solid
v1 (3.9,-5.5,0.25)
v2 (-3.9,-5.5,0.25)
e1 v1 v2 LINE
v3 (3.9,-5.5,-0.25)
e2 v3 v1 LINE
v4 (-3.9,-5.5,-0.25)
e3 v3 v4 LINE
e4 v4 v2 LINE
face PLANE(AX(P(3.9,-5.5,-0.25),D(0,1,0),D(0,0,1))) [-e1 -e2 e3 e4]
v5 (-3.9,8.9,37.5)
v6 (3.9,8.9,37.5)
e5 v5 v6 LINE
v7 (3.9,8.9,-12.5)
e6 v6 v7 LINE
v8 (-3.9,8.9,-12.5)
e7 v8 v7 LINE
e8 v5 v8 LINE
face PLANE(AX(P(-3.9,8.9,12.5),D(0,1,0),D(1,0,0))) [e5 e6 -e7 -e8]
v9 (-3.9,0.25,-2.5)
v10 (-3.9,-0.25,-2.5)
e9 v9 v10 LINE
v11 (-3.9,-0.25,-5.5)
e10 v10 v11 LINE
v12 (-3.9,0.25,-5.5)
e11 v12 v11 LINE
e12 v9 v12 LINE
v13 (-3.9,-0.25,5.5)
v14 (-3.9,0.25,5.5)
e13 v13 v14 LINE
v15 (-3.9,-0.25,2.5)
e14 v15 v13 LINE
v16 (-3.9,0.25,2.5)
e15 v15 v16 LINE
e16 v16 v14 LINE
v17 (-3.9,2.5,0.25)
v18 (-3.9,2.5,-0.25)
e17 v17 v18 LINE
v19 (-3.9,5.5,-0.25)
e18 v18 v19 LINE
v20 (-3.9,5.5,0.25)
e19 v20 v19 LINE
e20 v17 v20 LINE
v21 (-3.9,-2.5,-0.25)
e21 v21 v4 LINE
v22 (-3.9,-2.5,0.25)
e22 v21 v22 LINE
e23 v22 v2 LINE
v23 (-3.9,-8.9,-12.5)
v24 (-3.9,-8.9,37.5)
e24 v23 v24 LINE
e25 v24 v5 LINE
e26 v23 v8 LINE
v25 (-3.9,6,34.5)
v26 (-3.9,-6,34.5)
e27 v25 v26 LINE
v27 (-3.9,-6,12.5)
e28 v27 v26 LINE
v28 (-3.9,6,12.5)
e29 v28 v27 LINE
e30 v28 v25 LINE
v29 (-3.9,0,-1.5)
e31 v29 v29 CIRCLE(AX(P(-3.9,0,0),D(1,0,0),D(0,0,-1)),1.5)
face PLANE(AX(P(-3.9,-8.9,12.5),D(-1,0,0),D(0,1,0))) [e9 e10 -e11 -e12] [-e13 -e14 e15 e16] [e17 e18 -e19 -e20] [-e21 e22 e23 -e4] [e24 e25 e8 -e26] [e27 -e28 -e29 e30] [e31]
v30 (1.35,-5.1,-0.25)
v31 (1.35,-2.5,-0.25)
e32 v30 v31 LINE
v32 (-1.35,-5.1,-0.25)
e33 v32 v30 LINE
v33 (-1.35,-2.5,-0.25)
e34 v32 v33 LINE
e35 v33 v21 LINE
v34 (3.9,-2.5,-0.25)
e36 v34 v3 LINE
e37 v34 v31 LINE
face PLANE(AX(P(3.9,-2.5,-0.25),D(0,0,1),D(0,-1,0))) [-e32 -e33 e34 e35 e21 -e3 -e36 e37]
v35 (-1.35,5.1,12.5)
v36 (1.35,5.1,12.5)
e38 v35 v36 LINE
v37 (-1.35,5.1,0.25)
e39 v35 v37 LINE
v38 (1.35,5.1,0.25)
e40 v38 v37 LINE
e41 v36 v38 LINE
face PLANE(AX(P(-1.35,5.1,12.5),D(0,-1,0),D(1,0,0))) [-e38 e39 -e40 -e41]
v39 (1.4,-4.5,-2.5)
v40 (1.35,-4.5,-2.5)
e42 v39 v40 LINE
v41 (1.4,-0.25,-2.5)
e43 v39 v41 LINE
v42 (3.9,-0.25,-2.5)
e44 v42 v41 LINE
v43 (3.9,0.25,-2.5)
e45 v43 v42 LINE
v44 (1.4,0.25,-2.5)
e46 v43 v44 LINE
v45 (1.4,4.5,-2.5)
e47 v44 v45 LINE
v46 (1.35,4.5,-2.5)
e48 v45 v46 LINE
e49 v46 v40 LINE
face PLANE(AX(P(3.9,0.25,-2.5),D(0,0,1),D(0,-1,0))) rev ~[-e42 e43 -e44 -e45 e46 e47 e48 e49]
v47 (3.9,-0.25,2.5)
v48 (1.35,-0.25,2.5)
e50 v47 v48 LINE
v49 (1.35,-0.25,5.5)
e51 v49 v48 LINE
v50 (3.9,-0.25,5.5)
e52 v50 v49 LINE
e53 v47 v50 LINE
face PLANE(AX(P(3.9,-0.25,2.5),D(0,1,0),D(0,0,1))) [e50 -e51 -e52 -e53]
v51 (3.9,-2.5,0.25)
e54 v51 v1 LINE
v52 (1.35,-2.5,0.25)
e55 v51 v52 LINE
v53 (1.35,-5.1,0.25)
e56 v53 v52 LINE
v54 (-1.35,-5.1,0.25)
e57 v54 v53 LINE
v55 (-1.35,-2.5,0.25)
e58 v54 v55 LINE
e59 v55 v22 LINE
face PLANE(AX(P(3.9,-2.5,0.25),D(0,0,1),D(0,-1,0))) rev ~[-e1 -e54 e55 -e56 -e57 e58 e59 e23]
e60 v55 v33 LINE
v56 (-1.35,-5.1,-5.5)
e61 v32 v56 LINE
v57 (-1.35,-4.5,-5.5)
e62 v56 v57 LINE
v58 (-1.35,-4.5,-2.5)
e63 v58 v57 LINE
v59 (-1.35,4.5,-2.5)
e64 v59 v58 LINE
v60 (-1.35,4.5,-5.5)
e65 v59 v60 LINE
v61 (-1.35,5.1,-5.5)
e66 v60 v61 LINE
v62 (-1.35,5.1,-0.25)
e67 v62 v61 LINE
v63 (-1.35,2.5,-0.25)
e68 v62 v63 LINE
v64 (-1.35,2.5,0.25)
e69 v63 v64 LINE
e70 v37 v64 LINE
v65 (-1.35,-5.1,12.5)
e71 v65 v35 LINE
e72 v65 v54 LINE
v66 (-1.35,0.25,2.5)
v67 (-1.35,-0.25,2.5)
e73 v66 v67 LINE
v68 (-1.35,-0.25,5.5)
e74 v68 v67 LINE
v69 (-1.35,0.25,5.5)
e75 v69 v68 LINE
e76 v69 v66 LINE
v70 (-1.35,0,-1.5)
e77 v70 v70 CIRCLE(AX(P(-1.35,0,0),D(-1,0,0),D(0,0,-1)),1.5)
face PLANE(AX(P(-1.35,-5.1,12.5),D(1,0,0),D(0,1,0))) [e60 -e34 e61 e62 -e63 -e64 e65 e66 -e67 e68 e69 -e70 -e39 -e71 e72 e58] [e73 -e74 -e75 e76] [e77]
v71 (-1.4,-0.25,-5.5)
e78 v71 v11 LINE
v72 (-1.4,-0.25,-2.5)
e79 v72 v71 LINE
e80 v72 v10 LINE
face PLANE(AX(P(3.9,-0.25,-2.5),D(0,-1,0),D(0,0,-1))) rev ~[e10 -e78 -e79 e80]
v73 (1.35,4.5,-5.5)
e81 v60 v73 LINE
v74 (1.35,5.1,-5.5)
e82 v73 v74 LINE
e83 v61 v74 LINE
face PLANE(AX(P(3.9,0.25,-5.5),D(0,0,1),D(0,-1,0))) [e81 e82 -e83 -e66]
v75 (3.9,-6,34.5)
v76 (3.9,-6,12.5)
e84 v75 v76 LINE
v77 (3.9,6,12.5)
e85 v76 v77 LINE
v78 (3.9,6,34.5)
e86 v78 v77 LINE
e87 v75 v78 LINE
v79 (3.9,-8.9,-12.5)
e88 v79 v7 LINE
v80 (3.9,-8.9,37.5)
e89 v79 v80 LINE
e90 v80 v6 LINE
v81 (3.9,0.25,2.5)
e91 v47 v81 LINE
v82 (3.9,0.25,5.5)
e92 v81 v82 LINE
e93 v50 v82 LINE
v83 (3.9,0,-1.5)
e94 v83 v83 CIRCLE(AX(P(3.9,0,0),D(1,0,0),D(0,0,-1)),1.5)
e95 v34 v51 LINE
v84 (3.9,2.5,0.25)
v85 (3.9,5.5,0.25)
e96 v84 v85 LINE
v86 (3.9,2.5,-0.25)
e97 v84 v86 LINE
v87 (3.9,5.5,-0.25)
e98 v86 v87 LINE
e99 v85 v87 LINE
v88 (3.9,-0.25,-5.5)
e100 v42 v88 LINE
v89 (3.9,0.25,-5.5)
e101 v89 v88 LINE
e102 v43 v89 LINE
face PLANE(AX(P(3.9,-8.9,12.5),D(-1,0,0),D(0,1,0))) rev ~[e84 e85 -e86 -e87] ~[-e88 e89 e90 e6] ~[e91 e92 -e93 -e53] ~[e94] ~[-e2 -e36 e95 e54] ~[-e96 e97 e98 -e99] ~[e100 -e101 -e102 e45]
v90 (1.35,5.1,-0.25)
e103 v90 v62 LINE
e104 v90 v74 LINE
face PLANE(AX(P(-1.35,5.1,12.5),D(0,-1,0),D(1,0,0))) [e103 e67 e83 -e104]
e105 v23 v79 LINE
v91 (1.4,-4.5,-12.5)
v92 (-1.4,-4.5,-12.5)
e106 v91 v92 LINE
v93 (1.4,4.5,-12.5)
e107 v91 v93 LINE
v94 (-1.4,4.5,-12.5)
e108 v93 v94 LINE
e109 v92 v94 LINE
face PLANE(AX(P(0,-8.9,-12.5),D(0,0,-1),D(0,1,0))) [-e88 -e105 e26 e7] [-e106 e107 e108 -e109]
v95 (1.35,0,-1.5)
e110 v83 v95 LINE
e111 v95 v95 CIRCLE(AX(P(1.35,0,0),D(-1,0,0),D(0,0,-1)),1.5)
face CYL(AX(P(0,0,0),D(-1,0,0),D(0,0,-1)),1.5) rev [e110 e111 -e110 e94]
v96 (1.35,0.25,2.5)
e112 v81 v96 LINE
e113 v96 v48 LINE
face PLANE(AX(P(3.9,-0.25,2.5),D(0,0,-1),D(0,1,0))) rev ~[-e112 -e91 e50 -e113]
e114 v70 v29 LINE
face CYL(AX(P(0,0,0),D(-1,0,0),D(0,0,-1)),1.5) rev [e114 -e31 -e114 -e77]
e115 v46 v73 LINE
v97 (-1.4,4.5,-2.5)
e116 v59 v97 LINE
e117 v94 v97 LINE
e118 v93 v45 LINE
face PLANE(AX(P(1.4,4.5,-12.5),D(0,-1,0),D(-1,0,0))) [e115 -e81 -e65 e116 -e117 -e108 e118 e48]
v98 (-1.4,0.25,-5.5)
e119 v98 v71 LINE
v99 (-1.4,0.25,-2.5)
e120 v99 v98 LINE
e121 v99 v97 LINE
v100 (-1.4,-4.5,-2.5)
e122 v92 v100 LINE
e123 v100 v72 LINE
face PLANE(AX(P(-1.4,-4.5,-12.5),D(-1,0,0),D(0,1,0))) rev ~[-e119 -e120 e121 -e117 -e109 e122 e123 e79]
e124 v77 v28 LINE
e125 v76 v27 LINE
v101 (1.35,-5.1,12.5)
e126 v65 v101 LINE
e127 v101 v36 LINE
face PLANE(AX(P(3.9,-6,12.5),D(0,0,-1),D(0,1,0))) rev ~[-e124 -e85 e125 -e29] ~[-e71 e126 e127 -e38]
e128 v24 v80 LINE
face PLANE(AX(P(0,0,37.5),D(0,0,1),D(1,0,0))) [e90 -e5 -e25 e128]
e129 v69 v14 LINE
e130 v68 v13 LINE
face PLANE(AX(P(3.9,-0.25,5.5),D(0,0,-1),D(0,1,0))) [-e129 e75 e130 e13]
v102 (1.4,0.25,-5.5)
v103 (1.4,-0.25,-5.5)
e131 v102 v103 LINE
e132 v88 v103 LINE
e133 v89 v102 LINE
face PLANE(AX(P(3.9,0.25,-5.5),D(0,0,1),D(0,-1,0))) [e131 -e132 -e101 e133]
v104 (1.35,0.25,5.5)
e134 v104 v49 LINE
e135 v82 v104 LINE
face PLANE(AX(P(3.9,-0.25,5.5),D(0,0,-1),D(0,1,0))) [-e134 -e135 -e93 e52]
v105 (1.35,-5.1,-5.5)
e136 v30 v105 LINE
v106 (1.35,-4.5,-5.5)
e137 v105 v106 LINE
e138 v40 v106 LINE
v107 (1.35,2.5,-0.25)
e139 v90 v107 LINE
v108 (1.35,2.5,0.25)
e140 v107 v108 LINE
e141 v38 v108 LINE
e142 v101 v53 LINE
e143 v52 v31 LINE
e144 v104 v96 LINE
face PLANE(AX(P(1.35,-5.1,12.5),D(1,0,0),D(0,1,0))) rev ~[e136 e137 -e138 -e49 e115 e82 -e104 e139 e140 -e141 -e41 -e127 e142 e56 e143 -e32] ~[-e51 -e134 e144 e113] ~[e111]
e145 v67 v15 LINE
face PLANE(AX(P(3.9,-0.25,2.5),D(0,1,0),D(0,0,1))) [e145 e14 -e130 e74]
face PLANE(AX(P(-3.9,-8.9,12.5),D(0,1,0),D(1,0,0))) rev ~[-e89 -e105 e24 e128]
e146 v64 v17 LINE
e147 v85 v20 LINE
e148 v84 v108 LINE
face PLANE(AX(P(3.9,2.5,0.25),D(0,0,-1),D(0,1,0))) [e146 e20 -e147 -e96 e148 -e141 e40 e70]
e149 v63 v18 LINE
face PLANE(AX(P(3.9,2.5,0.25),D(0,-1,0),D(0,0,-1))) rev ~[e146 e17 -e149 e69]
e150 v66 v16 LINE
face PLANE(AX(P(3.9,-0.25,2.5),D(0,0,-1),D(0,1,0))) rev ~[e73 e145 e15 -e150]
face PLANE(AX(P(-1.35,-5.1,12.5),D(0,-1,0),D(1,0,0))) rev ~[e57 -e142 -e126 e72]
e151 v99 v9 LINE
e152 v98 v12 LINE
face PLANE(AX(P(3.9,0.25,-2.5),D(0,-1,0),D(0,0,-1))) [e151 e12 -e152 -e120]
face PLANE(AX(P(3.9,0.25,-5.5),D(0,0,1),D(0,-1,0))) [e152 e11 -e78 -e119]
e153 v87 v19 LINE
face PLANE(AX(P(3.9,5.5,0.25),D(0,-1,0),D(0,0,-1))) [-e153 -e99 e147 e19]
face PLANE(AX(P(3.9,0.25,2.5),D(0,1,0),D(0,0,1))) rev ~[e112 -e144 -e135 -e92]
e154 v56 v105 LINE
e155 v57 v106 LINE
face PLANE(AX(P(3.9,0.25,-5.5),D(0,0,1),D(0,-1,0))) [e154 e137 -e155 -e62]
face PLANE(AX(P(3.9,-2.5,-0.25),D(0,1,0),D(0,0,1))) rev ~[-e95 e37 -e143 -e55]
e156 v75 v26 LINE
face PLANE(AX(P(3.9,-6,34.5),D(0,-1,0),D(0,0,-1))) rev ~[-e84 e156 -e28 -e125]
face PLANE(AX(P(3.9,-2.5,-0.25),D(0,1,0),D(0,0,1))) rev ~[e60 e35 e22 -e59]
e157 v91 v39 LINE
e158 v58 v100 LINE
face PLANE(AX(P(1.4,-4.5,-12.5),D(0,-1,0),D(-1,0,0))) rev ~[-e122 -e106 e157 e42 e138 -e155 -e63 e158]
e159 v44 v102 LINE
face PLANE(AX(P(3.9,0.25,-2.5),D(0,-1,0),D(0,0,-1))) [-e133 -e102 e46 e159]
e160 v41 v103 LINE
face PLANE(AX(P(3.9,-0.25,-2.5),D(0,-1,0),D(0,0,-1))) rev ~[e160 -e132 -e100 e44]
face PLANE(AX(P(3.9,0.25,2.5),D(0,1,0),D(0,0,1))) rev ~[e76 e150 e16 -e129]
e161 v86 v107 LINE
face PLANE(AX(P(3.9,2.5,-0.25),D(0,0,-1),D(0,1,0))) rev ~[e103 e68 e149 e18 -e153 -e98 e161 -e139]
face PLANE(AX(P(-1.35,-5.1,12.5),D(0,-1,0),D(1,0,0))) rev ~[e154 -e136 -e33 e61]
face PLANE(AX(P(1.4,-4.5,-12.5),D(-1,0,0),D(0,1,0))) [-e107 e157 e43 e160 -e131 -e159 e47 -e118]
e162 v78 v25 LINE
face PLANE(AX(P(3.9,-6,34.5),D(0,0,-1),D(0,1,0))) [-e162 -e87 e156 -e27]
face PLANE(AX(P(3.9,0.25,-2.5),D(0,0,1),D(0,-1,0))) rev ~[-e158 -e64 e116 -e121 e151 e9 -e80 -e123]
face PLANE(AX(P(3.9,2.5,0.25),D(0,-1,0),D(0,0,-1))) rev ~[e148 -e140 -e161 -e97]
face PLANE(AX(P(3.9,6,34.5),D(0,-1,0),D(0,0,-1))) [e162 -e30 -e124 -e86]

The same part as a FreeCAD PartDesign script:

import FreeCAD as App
import Part
import Sketcher
from FreeCAD import Vector

doc = App.newDocument("Part")
body = doc.addObject("PartDesign::Body", "Body")

# Sketch on YZ plane
sketch1 = doc.addObject("Sketcher::SketchObject", "Sketch")
body.addObject(sketch1)
sketch1.AttachmentSupport = (doc.YZ_Plane, [""])
sketch1.MapMode = "FlatFace"
sketch1.addGeometry([
    Part.LineSegment(Vector(-8.9, 12.5, 0), Vector(-8.9, -12.5, 0)),  # 0
    Part.LineSegment(Vector(-8.9, -12.5, 0), Vector(8.9, -12.5, 0)),  # 1
    Part.LineSegment(Vector(8.9, -12.5, 0), Vector(8.9, 12.5, 0)),  # 2
    Part.LineSegment(Vector(8.9, 12.5, 0), Vector(-8.9, 12.5, 0)),  # 3
    Part.Circle(Vector(0, 0, 0), Vector(0, 0, 1), 1.5),  # 4
], False)
sketch1.addConstraint([
    Sketcher.Constraint("Coincident", 0, 2, 1, 1),
    Sketcher.Constraint("Coincident", 1, 2, 2, 1),
    Sketcher.Constraint("Coincident", 2, 2, 3, 1),
    Sketcher.Constraint("Coincident", 3, 2, 0, 1),
    Sketcher.Constraint("Vertical", 0),
    Sketcher.Constraint("Horizontal", 1),
    Sketcher.Constraint("Vertical", 2),
    Sketcher.Constraint("Horizontal", 3),
    Sketcher.Constraint("Coincident", 4, 3, -1, 1),
    Sketcher.Constraint("Symmetric", 0, 2, 2, 2, -1, 1),
    Sketcher.Constraint("Diameter", 4, 3.0),
    Sketcher.Constraint("DistanceY", 0, 2, 0, 1, 25.0),
    Sketcher.Constraint("DistanceX", 1, 1, 1, 2, 17.8),
])
pad1 = doc.addObject("PartDesign::Pad", "Pad")
body.addObject(pad1)
pad1.Profile = sketch1
pad1.Length = 7.8
pad1.Midplane = True

# Sketch on YZ plane
sketch2 = doc.addObject("Sketcher::SketchObject", "Sketch001")
body.addObject(sketch2)
sketch2.AttachmentSupport = (doc.YZ_Plane, [""])
sketch2.MapMode = "FlatFace"
sketch2.AttachmentOffset = App.Placement(Vector(0, 0, 3.9), App.Rotation())
sketch2.addGeometry([
    Part.LineSegment(Vector(5.5, 0.25, 0), Vector(2.5, 0.25, 0)),
    Part.LineSegment(Vector(2.5, 0.25, 0), Vector(2.5, -0.25, 0)),
    Part.LineSegment(Vector(2.5, -0.25, 0), Vector(5.5, -0.25, 0)),
    Part.LineSegment(Vector(5.5, -0.25, 0), Vector(5.5, 0.25, 0)),
], False)
sketch2.addConstraint([
    Sketcher.Constraint("Coincident", 0, 2, 1, 1),
    Sketcher.Constraint("Coincident", 1, 2, 2, 1),
    Sketcher.Constraint("Coincident", 2, 2, 3, 1),
    Sketcher.Constraint("Coincident", 3, 2, 0, 1),
    Sketcher.Constraint("Horizontal", 0),
    Sketcher.Constraint("Vertical", 1),
    Sketcher.Constraint("Horizontal", 2),
    Sketcher.Constraint("Vertical", 3),
    Sketcher.Constraint("DistanceX", 0, 2, 0, 1, 3.0),
    Sketcher.Constraint("DistanceY", 1, 2, 1, 1, 0.5),
    Sketcher.Constraint("DistanceX", -1, 1, 0, 2, 2.5),
    Sketcher.Constraint("DistanceY", -1, 1, 0, 2, 0.25),
])
pocket1 = doc.addObject("PartDesign::Pocket", "Pocket")
body.addObject(pocket1)
pocket1.Profile = sketch2
pocket1.Length = 10
doc.recompute()

polarpattern = doc.addObject("PartDesign::PolarPattern", "PolarPattern")
body.addObject(polarpattern)
polarpattern.Originals = [pocket1]
polarpattern.Axis = (doc.X_Axis, [""])
polarpattern.Angle = 360
polarpattern.Occurrences = 4
body.Tip = polarpattern

# Sketch on XY plane
sketch3 = doc.addObject("Sketcher::SketchObject", "Sketch002")
body.addObject(sketch3)
sketch3.AttachmentSupport = (doc.XY_Plane, [""])
sketch3.MapMode = "FlatFace"
sketch3.AttachmentOffset = App.Placement(Vector(0, 0, 12.5), App.Rotation())
sketch3.addGeometry([
    Part.LineSegment(Vector(-1.35, 5.1, 0), Vector(-1.35, -5.1, 0)),
    Part.LineSegment(Vector(-1.35, -5.1, 0), Vector(1.35, -5.1, 0)),
    Part.LineSegment(Vector(1.35, -5.1, 0), Vector(1.35, 5.1, 0)),
    Part.LineSegment(Vector(1.35, 5.1, 0), Vector(-1.35, 5.1, 0)),
], False)
sketch3.addConstraint([
    Sketcher.Constraint("Coincident", 0, 2, 1, 1),
    Sketcher.Constraint("Coincident", 1, 2, 2, 1),
    Sketcher.Constraint("Coincident", 2, 2, 3, 1),
    Sketcher.Constraint("Coincident", 3, 2, 0, 1),
    Sketcher.Constraint("Vertical", 0),
    Sketcher.Constraint("Horizontal", 1),
    Sketcher.Constraint("Vertical", 2),
    Sketcher.Constraint("Horizontal", 3),
    Sketcher.Constraint("Symmetric", 0, 2, 2, 2, -1, 1),
    Sketcher.Constraint("DistanceX", 1, 1, 1, 2, 2.7),
    Sketcher.Constraint("DistanceY", 0, 2, 0, 1, 10.2),
])
pocket2 = doc.addObject("PartDesign::Pocket", "Pocket001")
body.addObject(pocket2)
pocket2.Profile = sketch3
pocket2.Length = 18

# Sketch on XY plane
sketch4 = doc.addObject("Sketcher::SketchObject", "Sketch003")
body.addObject(sketch4)
sketch4.AttachmentSupport = (doc.XY_Plane, [""])
sketch4.MapMode = "FlatFace"
sketch4.AttachmentOffset = App.Placement(Vector(0, 0, -12.5), App.Rotation())
sketch4.addGeometry([
    Part.LineSegment(Vector(1.4, 4.5, 0), Vector(1.4, -4.5, 0)),
    Part.LineSegment(Vector(1.4, -4.5, 0), Vector(-1.4, -4.5, 0)),
    Part.LineSegment(Vector(-1.4, -4.5, 0), Vector(-1.4, 4.5, 0)),
    Part.LineSegment(Vector(-1.4, 4.5, 0), Vector(1.4, 4.5, 0)),
], False)
sketch4.addConstraint([
    Sketcher.Constraint("Coincident", 0, 2, 1, 1),
    Sketcher.Constraint("Coincident", 1, 2, 2, 1),
    Sketcher.Constraint("Coincident", 2, 2, 3, 1),
    Sketcher.Constraint("Coincident", 3, 2, 0, 1),
    Sketcher.Constraint("Vertical", 0),
    Sketcher.Constraint("Horizontal", 1),
    Sketcher.Constraint("Vertical", 2),
    Sketcher.Constraint("Horizontal", 3),
    Sketcher.Constraint("Symmetric", 0, 2, 2, 2, -1, 1),
    Sketcher.Constraint("DistanceY", 0, 2, 0, 1, 9.0),
    Sketcher.Constraint("DistanceX", 1, 2, 1, 1, 2.8),
])
pocket3 = doc.addObject("PartDesign::Pocket", "Pocket002")
body.addObject(pocket3)
pocket3.Profile = sketch4
pocket3.Length = 10
pocket3.Reversed = True

# Sketch on XY plane
sketch5 = doc.addObject("Sketcher::SketchObject", "Sketch004")
body.addObject(sketch5)
sketch5.AttachmentSupport = (doc.XY_Plane, [""])
sketch5.MapMode = "FlatFace"
sketch5.AttachmentOffset = App.Placement(Vector(0, 0, 12.5), App.Rotation())
sketch5.addGeometry([
    Part.LineSegment(Vector(-3.9, 8.9, 0), Vector(-3.9, -8.9, 0)),
    Part.LineSegment(Vector(-3.9, -8.9, 0), Vector(3.9, -8.9, 0)),
    Part.LineSegment(Vector(3.9, -8.9, 0), Vector(3.9, 8.9, 0)),
    Part.LineSegment(Vector(3.9, 8.9, 0), Vector(-3.9, 8.9, 0)),
], False)
sketch5.addConstraint([
    Sketcher.Constraint("Coincident", 0, 2, 1, 1),
    Sketcher.Constraint("Coincident", 1, 2, 2, 1),
    Sketcher.Constraint("Coincident", 2, 2, 3, 1),
    Sketcher.Constraint("Coincident", 3, 2, 0, 1),
    Sketcher.Constraint("Vertical", 0),
    Sketcher.Constraint("Horizontal", 1),
    Sketcher.Constraint("Vertical", 2),
    Sketcher.Constraint("Horizontal", 3),
    Sketcher.Constraint("Symmetric", 0, 2, 2, 2, -1, 1),
    Sketcher.Constraint("DistanceX", 1, 1, 1, 2, 7.8),
    Sketcher.Constraint("DistanceY", 0, 2, 0, 1, 17.8),
])
pad2 = doc.addObject("PartDesign::Pad", "Pad001")
body.addObject(pad2)
pad2.Profile = sketch5
pad2.Length = 25

# Sketch on YZ plane
sketch6 = doc.addObject("Sketcher::SketchObject", "Sketch005")
body.addObject(sketch6)
sketch6.AttachmentSupport = (doc.YZ_Plane, [""])
sketch6.MapMode = "FlatFace"
sketch6.AttachmentOffset = App.Placement(Vector(0, 0, 3.9), App.Rotation())
sketch6.addGeometry([
    Part.LineSegment(Vector(6, 34.5, 0), Vector(-6, 34.5, 0)),
    Part.LineSegment(Vector(-6, 34.5, 0), Vector(-6, 12.5, 0)),
    Part.LineSegment(Vector(-6, 12.5, 0), Vector(6, 12.5, 0)),
    Part.LineSegment(Vector(6, 12.5, 0), Vector(6, 34.5, 0)),
], False)
sketch6.addConstraint([
    Sketcher.Constraint("Coincident", 0, 2, 1, 1),
    Sketcher.Constraint("Coincident", 1, 2, 2, 1),
    Sketcher.Constraint("Coincident", 2, 2, 3, 1),
    Sketcher.Constraint("Coincident", 3, 2, 0, 1),
    Sketcher.Constraint("Horizontal", 0),
    Sketcher.Constraint("Vertical", 1),
    Sketcher.Constraint("Horizontal", 2),
    Sketcher.Constraint("Vertical", 3),
    Sketcher.Constraint("DistanceX", 0, 2, 0, 1, 12.0),
    Sketcher.Constraint("DistanceY", 1, 2, 1, 1, 22.0),
    Sketcher.Constraint("DistanceX", 0, 2, -1, 1, 6.0),
    Sketcher.Constraint("DistanceY", -1, 1, 0, 2, 34.5),
])
pocket4 = doc.addObject("PartDesign::Pocket", "Pocket003")
body.addObject(pocket4)
pocket4.Profile = sketch6
pocket4.Length = 30

doc.recompute()
